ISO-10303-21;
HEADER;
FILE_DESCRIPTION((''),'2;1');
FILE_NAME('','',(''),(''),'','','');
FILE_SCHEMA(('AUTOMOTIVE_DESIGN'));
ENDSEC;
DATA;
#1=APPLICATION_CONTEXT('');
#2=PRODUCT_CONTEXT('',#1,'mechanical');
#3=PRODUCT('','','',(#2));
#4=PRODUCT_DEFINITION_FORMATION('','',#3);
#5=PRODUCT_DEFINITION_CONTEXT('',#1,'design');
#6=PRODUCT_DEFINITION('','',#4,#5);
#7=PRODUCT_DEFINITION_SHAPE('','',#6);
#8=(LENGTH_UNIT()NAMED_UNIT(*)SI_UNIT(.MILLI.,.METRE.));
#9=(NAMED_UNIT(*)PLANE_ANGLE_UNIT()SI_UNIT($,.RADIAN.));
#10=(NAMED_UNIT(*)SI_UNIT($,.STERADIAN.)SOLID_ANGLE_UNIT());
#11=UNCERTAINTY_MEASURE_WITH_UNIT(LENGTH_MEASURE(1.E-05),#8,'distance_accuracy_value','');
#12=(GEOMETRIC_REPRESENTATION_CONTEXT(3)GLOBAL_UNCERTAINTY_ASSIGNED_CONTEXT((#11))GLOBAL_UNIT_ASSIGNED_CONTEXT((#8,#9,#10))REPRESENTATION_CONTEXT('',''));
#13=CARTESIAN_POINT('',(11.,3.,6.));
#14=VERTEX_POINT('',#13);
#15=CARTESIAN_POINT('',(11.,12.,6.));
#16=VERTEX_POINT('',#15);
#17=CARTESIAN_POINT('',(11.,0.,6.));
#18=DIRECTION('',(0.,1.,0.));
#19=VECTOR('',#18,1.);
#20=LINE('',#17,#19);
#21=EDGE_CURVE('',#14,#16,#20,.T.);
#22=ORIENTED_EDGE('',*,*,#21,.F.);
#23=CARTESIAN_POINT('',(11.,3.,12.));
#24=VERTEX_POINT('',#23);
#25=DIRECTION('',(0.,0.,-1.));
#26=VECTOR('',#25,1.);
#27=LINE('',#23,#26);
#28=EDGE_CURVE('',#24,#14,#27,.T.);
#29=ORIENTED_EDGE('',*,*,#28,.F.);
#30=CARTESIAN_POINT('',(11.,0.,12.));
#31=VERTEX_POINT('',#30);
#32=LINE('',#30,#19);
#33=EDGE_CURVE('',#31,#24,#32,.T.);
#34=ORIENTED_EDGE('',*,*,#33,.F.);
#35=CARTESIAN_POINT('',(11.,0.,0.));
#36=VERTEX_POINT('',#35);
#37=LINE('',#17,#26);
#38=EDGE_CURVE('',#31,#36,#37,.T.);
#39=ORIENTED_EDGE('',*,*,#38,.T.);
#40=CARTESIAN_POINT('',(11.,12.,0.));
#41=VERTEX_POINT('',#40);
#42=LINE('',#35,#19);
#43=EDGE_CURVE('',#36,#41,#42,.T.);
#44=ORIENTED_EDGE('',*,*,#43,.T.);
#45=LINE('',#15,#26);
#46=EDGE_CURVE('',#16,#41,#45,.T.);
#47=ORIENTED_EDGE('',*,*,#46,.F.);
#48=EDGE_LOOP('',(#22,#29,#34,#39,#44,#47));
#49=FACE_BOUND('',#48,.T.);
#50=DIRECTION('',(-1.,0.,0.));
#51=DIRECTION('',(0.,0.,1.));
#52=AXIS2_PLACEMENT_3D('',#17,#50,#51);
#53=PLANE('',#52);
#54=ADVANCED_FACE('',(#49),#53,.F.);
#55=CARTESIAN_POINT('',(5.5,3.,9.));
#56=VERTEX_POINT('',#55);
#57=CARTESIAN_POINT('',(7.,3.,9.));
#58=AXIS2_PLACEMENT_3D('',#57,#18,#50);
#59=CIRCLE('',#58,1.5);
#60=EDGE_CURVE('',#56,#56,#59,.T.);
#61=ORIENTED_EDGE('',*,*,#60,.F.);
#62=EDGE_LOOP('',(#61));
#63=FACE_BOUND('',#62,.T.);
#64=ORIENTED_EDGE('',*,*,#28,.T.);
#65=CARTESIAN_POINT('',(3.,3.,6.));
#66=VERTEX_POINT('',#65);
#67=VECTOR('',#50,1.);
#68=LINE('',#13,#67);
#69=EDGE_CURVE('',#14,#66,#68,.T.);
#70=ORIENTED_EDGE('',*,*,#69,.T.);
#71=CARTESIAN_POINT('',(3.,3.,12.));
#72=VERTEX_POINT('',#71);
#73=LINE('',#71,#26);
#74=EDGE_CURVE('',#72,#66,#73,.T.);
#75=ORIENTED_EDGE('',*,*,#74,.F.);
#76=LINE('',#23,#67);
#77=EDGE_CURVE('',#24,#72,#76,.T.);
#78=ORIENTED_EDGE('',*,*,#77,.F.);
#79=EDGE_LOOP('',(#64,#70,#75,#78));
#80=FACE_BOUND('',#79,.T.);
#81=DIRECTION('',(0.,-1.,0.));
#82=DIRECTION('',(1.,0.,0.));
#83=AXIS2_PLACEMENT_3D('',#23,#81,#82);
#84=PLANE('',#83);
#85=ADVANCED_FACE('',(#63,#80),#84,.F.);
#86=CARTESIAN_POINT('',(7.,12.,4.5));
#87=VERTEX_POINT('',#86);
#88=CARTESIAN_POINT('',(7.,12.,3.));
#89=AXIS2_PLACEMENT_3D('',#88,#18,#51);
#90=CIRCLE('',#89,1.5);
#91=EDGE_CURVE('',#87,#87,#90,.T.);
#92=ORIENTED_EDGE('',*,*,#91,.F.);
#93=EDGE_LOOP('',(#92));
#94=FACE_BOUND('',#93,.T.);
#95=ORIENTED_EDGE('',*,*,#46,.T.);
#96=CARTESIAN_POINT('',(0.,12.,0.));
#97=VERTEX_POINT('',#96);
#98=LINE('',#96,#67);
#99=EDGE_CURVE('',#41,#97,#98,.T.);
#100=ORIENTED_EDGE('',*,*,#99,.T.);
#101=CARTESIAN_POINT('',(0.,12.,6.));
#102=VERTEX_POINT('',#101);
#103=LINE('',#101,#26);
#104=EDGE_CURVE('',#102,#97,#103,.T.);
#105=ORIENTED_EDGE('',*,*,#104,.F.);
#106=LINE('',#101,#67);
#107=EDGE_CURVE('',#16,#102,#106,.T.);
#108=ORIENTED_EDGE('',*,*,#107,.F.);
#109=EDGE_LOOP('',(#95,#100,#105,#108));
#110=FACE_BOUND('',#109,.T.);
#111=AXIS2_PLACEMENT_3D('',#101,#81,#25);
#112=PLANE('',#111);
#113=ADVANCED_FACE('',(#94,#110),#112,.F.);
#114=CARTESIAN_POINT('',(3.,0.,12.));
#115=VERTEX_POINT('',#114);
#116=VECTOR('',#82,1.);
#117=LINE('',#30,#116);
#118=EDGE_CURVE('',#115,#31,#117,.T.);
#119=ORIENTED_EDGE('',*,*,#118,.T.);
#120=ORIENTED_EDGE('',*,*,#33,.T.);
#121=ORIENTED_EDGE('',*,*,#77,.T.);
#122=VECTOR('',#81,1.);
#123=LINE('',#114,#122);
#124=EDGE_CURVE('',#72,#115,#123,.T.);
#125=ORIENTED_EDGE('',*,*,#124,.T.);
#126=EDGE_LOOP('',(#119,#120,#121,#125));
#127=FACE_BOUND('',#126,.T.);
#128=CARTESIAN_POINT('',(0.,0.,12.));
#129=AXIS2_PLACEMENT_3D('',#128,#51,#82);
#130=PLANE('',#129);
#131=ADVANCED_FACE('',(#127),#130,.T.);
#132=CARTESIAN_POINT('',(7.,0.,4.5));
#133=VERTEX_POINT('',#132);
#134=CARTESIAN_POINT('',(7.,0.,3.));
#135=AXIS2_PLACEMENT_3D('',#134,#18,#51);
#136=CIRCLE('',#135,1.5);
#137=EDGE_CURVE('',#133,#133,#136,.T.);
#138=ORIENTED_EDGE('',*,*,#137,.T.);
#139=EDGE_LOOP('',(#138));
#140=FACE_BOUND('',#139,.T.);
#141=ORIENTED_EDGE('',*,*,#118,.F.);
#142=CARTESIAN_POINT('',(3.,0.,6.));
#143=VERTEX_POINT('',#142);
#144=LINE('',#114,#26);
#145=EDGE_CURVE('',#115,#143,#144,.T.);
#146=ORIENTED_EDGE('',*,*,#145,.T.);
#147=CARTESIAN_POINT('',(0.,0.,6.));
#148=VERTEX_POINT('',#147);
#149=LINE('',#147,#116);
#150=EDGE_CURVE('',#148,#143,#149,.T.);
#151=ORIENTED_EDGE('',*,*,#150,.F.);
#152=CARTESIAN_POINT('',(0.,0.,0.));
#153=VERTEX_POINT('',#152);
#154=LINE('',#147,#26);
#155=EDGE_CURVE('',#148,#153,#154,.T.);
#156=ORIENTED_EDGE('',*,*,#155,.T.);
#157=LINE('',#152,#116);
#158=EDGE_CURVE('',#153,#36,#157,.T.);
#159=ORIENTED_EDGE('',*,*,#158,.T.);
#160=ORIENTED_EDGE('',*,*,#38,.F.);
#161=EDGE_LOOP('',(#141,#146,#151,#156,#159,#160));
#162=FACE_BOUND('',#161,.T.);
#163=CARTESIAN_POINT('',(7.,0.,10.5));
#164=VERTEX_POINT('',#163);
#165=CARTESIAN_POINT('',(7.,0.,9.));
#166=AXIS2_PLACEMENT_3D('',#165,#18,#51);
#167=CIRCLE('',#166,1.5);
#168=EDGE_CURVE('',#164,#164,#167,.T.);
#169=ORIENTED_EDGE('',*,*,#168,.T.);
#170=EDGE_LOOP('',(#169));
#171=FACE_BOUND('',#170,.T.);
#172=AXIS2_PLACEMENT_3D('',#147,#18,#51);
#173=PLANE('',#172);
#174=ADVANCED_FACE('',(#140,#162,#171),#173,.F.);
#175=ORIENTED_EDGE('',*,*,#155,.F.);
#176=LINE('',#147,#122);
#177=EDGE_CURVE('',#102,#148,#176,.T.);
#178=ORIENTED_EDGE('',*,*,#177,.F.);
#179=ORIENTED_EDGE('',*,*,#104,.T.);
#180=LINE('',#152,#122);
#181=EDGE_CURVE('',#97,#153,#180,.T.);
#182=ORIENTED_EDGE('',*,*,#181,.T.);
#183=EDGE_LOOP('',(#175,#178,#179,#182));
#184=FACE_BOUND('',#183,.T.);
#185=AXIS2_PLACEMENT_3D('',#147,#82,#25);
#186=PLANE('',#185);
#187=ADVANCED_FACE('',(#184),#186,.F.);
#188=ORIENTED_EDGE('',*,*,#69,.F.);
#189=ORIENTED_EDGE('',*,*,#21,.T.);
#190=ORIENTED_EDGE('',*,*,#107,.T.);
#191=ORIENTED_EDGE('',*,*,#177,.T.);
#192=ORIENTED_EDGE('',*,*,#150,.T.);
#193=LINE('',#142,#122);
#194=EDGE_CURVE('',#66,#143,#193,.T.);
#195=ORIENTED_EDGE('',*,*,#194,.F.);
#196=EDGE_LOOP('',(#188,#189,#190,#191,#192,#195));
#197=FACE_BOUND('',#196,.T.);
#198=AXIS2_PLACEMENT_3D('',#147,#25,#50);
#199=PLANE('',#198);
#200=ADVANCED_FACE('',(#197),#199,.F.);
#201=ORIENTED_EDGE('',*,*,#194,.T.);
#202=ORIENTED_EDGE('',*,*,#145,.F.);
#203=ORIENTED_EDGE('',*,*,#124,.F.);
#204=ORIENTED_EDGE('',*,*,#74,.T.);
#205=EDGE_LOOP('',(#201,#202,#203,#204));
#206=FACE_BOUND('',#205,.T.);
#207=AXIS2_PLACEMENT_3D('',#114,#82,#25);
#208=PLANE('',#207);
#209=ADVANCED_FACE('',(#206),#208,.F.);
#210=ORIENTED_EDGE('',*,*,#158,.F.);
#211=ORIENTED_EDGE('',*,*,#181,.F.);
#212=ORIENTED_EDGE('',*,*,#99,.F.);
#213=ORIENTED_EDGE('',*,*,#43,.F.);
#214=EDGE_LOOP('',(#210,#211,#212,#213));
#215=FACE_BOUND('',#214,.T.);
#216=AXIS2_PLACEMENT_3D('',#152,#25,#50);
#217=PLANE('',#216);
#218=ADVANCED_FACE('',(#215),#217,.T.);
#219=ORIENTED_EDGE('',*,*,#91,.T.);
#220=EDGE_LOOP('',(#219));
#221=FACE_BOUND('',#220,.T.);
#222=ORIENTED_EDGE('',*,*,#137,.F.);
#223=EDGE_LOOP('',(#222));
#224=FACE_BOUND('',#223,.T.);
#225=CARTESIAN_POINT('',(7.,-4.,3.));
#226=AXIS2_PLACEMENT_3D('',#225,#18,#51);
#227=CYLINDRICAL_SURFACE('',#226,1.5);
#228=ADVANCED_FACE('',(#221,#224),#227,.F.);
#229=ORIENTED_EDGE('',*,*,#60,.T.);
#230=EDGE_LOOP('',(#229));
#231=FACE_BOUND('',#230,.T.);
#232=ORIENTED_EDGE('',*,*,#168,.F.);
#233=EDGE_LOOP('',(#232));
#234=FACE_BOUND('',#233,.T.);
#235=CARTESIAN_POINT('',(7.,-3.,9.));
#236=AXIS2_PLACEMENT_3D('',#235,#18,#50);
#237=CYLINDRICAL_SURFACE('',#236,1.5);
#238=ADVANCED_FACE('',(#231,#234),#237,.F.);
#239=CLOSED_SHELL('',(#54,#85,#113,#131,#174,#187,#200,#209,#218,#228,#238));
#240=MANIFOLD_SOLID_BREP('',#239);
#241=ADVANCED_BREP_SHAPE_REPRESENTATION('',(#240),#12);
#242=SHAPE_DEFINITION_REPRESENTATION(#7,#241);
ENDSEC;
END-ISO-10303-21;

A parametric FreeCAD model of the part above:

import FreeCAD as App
import Part
import Sketcher
Q = App.Units.Quantity

doc = App.newDocument("Part")
params = doc.addObject("Spreadsheet::Sheet", "Params")
for row, (alias, value) in enumerate([
    ("sketch1_width", "11 mm"),
    ("sketch1_height", "12 mm"),
    ("pad1_length", "6 mm"),
    ("sketch2_width", "8 mm"),
    ("sketch2_height", "3 mm"),
    ("pad2_length", "6 mm"),
    ("sketch3_diameter", "3 mm"),
    ("pocket1_length", "6 mm"),
    ("sketch4_diameter", "3 mm"),
    ("pocket2_length", "16 mm"),
], start=1):
    params.set(f"A{row}", alias)
    params.set(f"B{row}", "=" + value)
    params.setAlias(f"B{row}", alias)

body = doc.addObject("PartDesign::Body", "Body")

sketch1 = body.newObject("Sketcher::SketchObject", "Sketch")
sketch1.AttachmentSupport = (doc.getObject("XY_Plane"), [""])
sketch1.MapMode = "FlatFace"
sketch1.addGeometry([
    Part.LineSegment(App.Vector(0, 12, 0), App.Vector(0, 0, 0)),
    Part.LineSegment(App.Vector(0, 0, 0), App.Vector(11, 0, 0)),
    Part.LineSegment(App.Vector(11, 0, 0), App.Vector(11, 12, 0)),
    Part.LineSegment(App.Vector(11, 12, 0), App.Vector(0, 12, 0)),
], False)
sketch1.addConstraint([
    Sketcher.Constraint("Coincident", 0, 2, 1, 1),
    Sketcher.Constraint("Coincident", 1, 2, 2, 1),
    Sketcher.Constraint("Coincident", 2, 2, 3, 1),
    Sketcher.Constraint("Coincident", 3, 2, 0, 1),
    Sketcher.Constraint("Vertical", 0),
    Sketcher.Constraint("Horizontal", 1),
    Sketcher.Constraint("Vertical", 2),
    Sketcher.Constraint("Horizontal", 3),
    Sketcher.Constraint("Coincident", 0, 2, -1, 1),
    Sketcher.Constraint("DistanceX", 1, 1, 1, 2, Q("11 mm")),
    Sketcher.Constraint("DistanceY", 0, 2, 0, 1, Q("12 mm")),
])
sketch1.setExpression("Constraints[9]", "Params.sketch1_width")
sketch1.setExpression("Constraints[10]", "Params.sketch1_height")
pad1 = body.newObject("PartDesign::Pad", "Pad")
pad1.Profile = sketch1
pad1.setExpression("Length", "Params.pad1_length")

sketch2 = body.newObject("Sketcher::SketchObject", "Sketch001")
sketch2.AttachmentSupport = (doc.getObject("XY_Plane"), [""])
sketch2.MapMode = "FlatFace"
sketch2.AttachmentOffset = App.Placement(App.Vector(0, 0, 6), App.Rotation())
sketch2.addGeometry([
    Part.LineSegment(App.Vector(3, 3, 0), App.Vector(3, 0, 0)),
    Part.LineSegment(App.Vector(3, 0, 0), App.Vector(11, 0, 0)),
    Part.LineSegment(App.Vector(11, 0, 0), App.Vector(11, 3, 0)),
    Part.LineSegment(App.Vector(11, 3, 0), App.Vector(3, 3, 0)),
], False)
sketch2.addConstraint([
    Sketcher.Constraint("Coincident", 0, 2, 1, 1),
    Sketcher.Constraint("Coincident", 1, 2, 2, 1),
    Sketcher.Constraint("Coincident", 2, 2, 3, 1),
    Sketcher.Constraint("Coincident", 3, 2, 0, 1),
    Sketcher.Constraint("Vertical", 0),
    Sketcher.Constraint("Horizontal", 1),
    Sketcher.Constraint("Vertical", 2),
    Sketcher.Constraint("Horizontal", 3),
    Sketcher.Constraint("PointOnObject", 0, 2, -1),
    Sketcher.Constraint("DistanceX", 1, 1, 1, 2, Q("8 mm")),
    Sketcher.Constraint("DistanceY", 0, 2, 0, 1, Q("3 mm")),
    Sketcher.Constraint("DistanceX", -1, 1, 0, 2, Q("3 mm")),
])
sketch2.setExpression("Constraints[9]", "Params.sketch2_width")
sketch2.setExpression("Constraints[10]", "Params.sketch2_height")
pad2 = body.newObject("PartDesign::Pad", "Pad001")
pad2.Profile = sketch2
pad2.setExpression("Length", "Params.pad2_length")

sketch3 = body.newObject("Sketcher::SketchObject", "Sketch002")
sketch3.AttachmentSupport = (doc.getObject("XZ_Plane"), [""])
sketch3.MapMode = "FlatFace"
sketch3.AttachmentOffset = App.Placement(App.Vector(0, 0, -3), App.Rotation())
sketch3.addGeometry(Part.Circle(App.Vector(7, 9, 0), App.Vector(0, 0, 1), 1.5), False)
sketch3.addConstraint([
    Sketcher.Constraint("Diameter", 0, Q("3 mm")),
    Sketcher.Constraint("DistanceX", -1, 1, 0, 3, Q("7 mm")),
    Sketcher.Constraint("DistanceY", -1, 1, 0, 3, Q("9 mm")),
])
sketch3.setExpression("Constraints[0]", "Params.sketch3_diameter")
pocket1 = body.newObject("PartDesign::Pocket", "Pocket")
pocket1.Profile = sketch3
pocket1.setExpression("Length", "Params.pocket1_length")
pocket1.Reversed = True

sketch4 = body.newObject("Sketcher::SketchObject", "Sketch003")
sketch4.AttachmentSupport = (doc.getObject("XZ_Plane"), [""])
sketch4.MapMode = "FlatFace"
sketch4.AttachmentOffset = App.Placement(App.Vector(0, 0, -12), App.Rotation())
sketch4.addGeometry(Part.Circle(App.Vector(7, 3, 0), App.Vector(0, 0, 1), 1.5), False)
sketch4.addConstraint([
    Sketcher.Constraint("Diameter", 0, Q("3 mm")),
    Sketcher.Constraint("DistanceX", -1, 1, 0, 3, Q("7 mm")),
    Sketcher.Constraint("DistanceY", -1, 1, 0, 3, Q("3 mm")),
])
sketch4.setExpression("Constraints[0]", "Params.sketch4_diameter")
pocket2 = body.newObject("PartDesign::Pocket", "Pocket001")
pocket2.Profile = sketch4
pocket2.setExpression("Length", "Params.pocket2_length")
pocket2.Reversed = True

doc.recompute()
